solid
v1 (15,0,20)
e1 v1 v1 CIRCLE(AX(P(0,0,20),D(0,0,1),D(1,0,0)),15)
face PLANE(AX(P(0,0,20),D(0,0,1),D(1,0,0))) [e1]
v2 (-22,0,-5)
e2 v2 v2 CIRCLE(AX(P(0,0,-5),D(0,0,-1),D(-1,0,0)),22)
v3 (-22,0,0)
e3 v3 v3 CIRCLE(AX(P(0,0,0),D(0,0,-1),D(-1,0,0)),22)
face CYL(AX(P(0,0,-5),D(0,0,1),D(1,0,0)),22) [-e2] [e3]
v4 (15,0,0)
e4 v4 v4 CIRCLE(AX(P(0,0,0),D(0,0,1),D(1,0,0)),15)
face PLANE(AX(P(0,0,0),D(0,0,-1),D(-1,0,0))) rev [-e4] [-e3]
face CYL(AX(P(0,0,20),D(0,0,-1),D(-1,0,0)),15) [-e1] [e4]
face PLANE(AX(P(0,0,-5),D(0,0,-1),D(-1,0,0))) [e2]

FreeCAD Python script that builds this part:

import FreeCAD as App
import Part
import Sketcher

doc = App.newDocument("Part")
body = doc.addObject("PartDesign::Body", "Body")

# Sketch on XY plane
sketch1 = body.newObject("Sketcher::SketchObject", "Sketch")
sketch1.AttachmentSupport = (doc.getObject("XY_Plane"), [""])
sketch1.MapMode = "FlatFace"
sketch1.addGeometry(Part.Circle(App.Vector(0, 0, 0), App.Vector(0, 0, 1), 15), False)
sketch1.addConstraint([
    Sketcher.Constraint("Coincident", 0, 3, -1, 1),
    Sketcher.Constraint("Diameter", 0, 30.0),
])
pad1 = body.newObject("PartDesign::Pad", "Pad")
pad1.Profile = sketch1
pad1.Length = 20

# Sketch on XY plane
sketch2 = body.newObject("Sketcher::SketchObject", "Sketch001")
sketch2.AttachmentSupport = (doc.getObject("XY_Plane"), [""])
sketch2.MapMode = "FlatFace"
sketch2.addGeometry(Part.Circle(App.Vector(0, 0, 0), App.Vector(0, 0, 1), 22), False)
sketch2.addConstraint([
    Sketcher.Constraint("Coincident", 0, 3, -1, 1),
    Sketcher.Constraint("Diameter", 0, 44.0),
])
pad2 = body.newObject("PartDesign::Pad", "Pad001")
pad2.Profile = sketch2
pad2.Length = 5
pad2.Reversed = True

doc.recompute()
